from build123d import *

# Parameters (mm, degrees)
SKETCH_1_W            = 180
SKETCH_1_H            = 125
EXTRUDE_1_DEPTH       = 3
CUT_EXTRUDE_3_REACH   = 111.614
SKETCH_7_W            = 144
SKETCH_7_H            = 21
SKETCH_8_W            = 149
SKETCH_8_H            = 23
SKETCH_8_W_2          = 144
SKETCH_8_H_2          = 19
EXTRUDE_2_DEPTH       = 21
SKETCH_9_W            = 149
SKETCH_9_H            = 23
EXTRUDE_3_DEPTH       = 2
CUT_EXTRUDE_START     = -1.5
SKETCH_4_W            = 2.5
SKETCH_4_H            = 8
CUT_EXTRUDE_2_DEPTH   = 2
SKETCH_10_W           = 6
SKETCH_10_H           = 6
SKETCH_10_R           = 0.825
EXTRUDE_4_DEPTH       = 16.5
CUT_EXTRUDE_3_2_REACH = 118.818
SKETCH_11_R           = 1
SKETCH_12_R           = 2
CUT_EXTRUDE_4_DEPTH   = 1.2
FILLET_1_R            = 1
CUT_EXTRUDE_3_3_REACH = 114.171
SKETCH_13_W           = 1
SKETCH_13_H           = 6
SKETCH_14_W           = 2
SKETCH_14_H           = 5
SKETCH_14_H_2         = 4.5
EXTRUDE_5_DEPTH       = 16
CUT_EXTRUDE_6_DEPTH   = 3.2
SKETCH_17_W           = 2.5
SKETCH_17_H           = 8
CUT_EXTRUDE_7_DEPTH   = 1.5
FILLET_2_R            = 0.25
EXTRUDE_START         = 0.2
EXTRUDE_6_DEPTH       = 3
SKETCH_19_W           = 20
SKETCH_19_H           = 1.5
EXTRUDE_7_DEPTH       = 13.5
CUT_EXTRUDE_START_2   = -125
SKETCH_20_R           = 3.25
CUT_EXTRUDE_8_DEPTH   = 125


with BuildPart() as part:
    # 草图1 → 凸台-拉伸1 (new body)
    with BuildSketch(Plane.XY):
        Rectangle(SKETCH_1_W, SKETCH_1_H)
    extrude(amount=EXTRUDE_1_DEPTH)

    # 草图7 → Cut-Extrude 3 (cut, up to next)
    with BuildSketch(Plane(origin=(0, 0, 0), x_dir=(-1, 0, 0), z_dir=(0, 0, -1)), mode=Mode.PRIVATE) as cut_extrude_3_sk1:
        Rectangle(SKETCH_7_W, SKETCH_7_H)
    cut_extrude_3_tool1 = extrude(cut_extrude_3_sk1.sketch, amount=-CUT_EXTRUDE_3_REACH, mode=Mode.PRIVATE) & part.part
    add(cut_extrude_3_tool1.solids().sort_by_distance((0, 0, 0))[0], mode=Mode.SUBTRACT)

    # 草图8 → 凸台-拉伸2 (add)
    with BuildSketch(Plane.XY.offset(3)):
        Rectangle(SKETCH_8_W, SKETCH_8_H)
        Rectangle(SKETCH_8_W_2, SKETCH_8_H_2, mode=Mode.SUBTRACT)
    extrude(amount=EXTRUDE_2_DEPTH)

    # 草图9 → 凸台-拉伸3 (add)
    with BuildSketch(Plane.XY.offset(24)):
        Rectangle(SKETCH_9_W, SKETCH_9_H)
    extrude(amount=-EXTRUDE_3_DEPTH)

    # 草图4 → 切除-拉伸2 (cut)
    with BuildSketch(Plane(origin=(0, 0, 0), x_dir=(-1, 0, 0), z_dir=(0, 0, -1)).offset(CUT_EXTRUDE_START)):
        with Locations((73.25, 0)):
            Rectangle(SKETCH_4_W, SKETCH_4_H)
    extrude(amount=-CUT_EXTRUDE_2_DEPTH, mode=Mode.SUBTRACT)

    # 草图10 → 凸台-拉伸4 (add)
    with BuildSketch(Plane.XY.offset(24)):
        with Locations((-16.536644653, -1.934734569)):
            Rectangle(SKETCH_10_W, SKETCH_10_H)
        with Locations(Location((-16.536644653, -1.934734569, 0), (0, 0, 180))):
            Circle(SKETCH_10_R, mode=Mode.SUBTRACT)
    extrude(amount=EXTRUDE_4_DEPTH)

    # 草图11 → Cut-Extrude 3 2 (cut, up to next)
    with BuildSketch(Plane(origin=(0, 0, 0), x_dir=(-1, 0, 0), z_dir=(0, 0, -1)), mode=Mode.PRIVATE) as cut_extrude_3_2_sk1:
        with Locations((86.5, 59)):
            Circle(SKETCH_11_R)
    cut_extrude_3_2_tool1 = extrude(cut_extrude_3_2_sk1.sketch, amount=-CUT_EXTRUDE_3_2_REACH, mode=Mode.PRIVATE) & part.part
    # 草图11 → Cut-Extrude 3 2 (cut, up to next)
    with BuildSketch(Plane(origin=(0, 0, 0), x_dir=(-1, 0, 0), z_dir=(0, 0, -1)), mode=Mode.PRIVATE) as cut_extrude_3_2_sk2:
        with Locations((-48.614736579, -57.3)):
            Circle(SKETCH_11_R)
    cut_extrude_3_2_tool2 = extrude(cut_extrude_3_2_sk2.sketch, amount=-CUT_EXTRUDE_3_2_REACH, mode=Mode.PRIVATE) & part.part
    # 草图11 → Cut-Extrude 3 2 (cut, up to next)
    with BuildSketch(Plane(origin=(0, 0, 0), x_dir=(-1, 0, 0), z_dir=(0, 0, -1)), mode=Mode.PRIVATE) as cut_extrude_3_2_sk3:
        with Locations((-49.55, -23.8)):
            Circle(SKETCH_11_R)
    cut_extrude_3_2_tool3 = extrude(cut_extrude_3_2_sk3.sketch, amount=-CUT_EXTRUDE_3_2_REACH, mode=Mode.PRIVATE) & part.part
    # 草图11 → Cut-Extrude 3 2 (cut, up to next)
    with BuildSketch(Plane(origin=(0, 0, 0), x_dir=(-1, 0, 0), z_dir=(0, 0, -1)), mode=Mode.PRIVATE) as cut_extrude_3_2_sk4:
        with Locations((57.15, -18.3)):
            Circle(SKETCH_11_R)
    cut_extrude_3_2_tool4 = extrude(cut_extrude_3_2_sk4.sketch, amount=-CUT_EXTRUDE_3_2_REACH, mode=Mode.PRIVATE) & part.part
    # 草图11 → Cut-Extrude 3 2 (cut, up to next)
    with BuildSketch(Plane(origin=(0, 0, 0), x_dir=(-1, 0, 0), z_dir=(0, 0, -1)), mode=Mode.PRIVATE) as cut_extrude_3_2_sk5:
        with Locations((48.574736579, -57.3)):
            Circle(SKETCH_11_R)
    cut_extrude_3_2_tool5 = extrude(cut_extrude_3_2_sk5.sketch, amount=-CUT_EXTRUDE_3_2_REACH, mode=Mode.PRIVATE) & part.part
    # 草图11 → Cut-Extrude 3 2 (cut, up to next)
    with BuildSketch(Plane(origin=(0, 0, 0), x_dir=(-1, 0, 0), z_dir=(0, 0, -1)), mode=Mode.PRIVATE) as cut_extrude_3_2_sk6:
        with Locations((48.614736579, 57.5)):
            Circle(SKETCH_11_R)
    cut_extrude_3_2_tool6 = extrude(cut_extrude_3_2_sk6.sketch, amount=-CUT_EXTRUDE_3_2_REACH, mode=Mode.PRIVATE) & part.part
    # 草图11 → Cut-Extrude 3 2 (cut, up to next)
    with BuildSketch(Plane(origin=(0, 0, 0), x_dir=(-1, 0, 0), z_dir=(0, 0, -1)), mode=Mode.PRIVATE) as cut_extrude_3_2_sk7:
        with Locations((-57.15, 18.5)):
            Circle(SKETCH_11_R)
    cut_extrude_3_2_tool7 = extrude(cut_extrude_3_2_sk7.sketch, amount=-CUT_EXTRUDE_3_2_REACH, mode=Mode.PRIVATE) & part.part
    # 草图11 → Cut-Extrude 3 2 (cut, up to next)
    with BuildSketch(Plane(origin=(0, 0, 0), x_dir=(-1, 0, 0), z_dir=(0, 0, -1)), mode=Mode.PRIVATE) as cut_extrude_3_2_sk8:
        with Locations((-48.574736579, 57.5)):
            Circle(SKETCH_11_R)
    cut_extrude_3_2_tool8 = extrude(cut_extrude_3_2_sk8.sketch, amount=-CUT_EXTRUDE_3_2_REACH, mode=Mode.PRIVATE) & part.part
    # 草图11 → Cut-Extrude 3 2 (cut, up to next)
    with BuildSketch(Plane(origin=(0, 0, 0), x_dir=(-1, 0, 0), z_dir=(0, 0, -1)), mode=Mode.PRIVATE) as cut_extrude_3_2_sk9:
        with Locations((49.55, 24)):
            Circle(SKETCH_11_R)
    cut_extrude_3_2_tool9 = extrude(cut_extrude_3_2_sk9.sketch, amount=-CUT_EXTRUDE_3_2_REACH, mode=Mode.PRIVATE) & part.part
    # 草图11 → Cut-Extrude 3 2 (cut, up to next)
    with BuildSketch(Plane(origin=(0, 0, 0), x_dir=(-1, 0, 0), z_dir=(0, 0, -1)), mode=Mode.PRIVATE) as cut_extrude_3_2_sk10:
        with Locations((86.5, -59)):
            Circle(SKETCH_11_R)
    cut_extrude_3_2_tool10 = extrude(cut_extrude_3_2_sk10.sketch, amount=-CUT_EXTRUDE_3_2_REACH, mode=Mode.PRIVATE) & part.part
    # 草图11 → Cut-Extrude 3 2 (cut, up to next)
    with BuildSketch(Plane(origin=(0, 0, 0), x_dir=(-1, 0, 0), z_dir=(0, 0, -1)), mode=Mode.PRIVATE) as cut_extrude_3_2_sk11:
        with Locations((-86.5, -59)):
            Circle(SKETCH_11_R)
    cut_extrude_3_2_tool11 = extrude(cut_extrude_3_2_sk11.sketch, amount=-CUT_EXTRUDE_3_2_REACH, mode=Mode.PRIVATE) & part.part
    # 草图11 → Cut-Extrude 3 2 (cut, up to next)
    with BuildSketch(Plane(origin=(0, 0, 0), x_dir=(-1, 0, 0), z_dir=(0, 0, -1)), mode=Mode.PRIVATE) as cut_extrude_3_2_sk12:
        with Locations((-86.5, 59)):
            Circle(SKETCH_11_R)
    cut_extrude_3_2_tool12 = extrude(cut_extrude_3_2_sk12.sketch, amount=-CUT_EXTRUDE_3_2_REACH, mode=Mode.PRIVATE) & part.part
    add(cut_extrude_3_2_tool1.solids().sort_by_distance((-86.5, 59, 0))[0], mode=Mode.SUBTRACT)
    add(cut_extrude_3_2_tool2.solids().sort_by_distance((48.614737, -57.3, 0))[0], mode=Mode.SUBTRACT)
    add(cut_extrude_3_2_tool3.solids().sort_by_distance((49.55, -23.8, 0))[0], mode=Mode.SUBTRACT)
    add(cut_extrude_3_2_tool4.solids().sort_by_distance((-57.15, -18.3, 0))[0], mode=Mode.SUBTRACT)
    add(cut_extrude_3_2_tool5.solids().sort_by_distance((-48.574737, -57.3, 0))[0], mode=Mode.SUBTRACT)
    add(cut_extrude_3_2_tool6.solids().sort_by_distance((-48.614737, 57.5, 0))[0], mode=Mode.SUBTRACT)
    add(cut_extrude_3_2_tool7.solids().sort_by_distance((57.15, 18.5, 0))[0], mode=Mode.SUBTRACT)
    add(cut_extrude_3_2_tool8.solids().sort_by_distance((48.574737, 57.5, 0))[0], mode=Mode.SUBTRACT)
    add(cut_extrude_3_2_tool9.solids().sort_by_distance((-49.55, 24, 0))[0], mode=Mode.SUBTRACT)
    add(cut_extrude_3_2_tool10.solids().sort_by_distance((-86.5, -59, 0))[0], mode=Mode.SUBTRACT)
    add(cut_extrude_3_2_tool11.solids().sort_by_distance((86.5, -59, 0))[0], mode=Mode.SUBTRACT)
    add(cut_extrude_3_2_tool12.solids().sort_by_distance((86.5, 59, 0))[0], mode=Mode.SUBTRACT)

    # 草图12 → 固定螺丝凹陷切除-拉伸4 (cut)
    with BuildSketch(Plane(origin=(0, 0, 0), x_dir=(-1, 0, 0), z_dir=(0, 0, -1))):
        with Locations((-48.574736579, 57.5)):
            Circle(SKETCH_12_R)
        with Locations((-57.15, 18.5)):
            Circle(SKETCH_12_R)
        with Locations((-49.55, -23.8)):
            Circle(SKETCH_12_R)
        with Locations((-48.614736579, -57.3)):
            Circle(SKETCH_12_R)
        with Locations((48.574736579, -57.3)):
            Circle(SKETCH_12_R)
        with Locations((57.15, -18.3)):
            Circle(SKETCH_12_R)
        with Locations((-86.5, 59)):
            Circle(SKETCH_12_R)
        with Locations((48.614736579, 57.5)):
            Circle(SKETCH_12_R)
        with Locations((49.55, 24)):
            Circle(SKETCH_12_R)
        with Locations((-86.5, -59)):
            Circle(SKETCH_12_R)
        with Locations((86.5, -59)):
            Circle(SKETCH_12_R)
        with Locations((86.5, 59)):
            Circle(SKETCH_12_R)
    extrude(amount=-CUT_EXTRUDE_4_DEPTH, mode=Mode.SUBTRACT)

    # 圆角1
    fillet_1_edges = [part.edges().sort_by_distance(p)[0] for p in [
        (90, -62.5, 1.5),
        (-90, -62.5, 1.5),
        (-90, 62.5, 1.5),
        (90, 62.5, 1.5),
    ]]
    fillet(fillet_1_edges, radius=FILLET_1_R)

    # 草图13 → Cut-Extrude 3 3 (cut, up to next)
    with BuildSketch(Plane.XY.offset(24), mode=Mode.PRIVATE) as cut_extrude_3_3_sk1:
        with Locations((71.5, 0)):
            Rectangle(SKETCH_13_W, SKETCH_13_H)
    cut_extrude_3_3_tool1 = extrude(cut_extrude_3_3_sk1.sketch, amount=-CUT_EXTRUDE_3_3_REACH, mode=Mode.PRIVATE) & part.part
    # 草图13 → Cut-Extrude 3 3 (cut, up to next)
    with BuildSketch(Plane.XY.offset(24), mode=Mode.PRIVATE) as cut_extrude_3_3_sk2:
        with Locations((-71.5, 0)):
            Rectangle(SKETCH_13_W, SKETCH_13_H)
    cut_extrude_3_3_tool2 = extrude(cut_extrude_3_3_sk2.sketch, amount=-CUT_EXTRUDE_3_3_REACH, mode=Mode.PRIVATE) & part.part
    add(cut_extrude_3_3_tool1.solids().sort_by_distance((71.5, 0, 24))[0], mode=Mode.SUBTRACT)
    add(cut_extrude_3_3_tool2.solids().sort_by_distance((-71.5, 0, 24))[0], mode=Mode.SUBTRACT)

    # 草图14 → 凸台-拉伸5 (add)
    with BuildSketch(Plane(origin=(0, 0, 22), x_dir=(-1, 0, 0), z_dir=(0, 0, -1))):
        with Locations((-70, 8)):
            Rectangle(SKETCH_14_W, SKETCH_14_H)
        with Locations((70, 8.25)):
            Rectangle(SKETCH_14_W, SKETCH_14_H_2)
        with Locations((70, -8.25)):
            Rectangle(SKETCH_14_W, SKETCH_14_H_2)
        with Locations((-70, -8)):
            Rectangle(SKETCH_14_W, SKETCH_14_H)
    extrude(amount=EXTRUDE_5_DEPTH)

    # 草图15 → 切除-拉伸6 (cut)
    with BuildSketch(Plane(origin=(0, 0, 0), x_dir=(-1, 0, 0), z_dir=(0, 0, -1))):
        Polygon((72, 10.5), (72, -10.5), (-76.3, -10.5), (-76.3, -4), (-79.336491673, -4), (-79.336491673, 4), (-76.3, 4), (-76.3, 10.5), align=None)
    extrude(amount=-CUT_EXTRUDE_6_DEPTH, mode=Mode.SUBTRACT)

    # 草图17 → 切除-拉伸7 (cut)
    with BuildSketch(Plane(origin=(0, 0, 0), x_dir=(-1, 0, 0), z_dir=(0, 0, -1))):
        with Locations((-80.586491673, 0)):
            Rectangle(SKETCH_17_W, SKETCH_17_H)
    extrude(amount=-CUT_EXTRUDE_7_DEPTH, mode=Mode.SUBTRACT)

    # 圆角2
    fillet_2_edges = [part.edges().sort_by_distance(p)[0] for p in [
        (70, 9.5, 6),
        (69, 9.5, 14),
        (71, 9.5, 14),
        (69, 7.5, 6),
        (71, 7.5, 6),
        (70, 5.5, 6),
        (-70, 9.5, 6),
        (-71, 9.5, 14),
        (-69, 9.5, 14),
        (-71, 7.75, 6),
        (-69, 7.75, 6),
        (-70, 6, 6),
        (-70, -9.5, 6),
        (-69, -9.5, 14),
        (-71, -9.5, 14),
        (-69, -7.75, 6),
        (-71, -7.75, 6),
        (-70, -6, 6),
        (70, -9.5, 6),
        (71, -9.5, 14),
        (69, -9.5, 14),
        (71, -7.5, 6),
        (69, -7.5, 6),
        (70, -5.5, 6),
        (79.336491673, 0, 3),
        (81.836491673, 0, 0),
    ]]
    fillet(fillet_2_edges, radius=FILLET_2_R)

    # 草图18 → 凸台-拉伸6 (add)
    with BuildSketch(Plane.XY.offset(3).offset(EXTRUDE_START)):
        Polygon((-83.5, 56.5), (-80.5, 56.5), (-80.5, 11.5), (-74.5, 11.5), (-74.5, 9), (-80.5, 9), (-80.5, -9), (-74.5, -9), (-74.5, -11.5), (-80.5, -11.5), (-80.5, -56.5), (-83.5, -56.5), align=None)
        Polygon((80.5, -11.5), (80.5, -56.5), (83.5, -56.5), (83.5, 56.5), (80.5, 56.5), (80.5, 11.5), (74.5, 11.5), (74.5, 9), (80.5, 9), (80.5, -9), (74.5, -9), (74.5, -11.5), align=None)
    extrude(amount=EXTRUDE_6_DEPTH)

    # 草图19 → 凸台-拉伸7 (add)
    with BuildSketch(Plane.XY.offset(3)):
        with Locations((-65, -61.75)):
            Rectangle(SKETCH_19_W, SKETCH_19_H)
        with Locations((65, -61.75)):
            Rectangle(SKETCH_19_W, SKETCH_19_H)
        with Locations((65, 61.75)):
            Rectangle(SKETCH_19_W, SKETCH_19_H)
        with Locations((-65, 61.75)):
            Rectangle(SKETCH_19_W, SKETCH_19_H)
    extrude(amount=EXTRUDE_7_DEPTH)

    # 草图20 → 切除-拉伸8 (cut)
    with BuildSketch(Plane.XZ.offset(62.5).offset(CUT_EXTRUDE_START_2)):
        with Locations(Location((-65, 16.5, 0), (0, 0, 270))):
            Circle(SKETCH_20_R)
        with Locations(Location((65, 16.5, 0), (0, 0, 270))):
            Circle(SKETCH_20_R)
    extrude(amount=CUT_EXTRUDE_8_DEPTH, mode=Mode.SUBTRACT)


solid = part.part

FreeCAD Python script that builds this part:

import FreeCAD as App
import Part
import Sketcher
Q = App.Units.Quantity


def edges_at(feature, points):
    """Names of the edges that pass closest to the given points."""
    edges = feature.Shape.Edges
    near = lambda p: min(range(len(edges)), key=lambda i: edges[i].distToShape(Part.Vertex(*p))[0])
    return sorted({f"Edge{near(p) + 1}" for p in points})


def add_polygon(sketch, points):
    """Adds a closed chain of lines whose ends are joined by coincident constraints."""
    first, n = sketch.GeometryCount, len(points)
    for a, b in zip(points, points[1:] + points[:1]):
        sketch.addGeometry(Part.LineSegment(App.Vector(*a, 0), App.Vector(*b, 0)), False)
    for i in range(n):
        sketch.addConstraint(Sketcher.Constraint("Coincident", first + i, 2, first + (i + 1) % n, 1))

doc = App.newDocument("Part")
body = doc.addObject("PartDesign::Body", "Body")

# Sketch on XY plane
sketch1 = doc.addObject("Sketcher::SketchObject", "Sketch")
body.addObject(sketch1)
sketch1.AttachmentSupport = (doc.XY_Plane, [""])
sketch1.MapMode = "FlatFace"
add_polygon(sketch1, [(-90, 62), (-90, -62), (90, -62), (90, 62)])  # lines 0-3
sketch1.addConstraint([
    Sketcher.Constraint("Vertical", 0),
    Sketcher.Constraint("Horizontal", 1),
    Sketcher.Constraint("Vertical", 2),
    Sketcher.Constraint("Horizontal", 3),
    Sketcher.Constraint("Symmetric", 0, 2, 2, 2, -1, 1),
    Sketcher.Constraint("DistanceX", 1, 1, 1, 2, Q("180 mm")),
    Sketcher.Constraint("DistanceY", 0, 2, 0, 1, Q("125 mm")),
])
pad1 = doc.addObject("PartDesign::Pad", "Pad")
body.addObject(pad1)
pad1.Profile = sketch1
pad1.Length = 3

# Sketch on XY plane
sketch2 = doc.addObject("Sketcher::SketchObject", "Sketch001")
body.addObject(sketch2)
sketch2.AttachmentSupport = (doc.XY_Plane, [""])
sketch2.MapMode = "FlatFace"
add_polygon(sketch2, [(72, 10), (72, -10), (-72, -10), (-72, 10)])  # lines 0-3
sketch2.addConstraint([
    Sketcher.Constraint("Vertical", 0),
    Sketcher.Constraint("Horizontal", 1),
    Sketcher.Constraint("Vertical", 2),
    Sketcher.Constraint("Horizontal", 3),
    Sketcher.Constraint("Symmetric", 0, 2, 2, 2, -1, 1),
    Sketcher.Constraint("DistanceX", 1, 2, 1, 1, Q("144 mm")),
    Sketcher.Constraint("DistanceY", 0, 2, 0, 1, Q("21 mm")),
])
pocket1 = doc.addObject("PartDesign::Pocket", "Pocket")
body.addObject(pocket1)
pocket1.Profile = sketch2
pocket1.Type = "UpToFirst"
pocket1.Reversed = True

# Sketch on XY plane
sketch3 = doc.addObject("Sketcher::SketchObject", "Sketch002")
body.addObject(sketch3)
sketch3.AttachmentSupport = (doc.XY_Plane, [""])
sketch3.MapMode = "FlatFace"
sketch3.AttachmentOffset = App.Placement(App.Vector(0, 0, 3), App.Rotation())
add_polygon(sketch3, [(-74, 12), (-74, -12), (74, -12), (74, 12)])  # lines 0-3
add_polygon(sketch3, [(72, -10), (-72, -10), (-72, 10), (72, 10)])  # lines 4-7
sketch3.addConstraint([
    Sketcher.Constraint("Vertical", 0),
    Sketcher.Constraint("Horizontal", 1),
    Sketcher.Constraint("Vertical", 2),
    Sketcher.Constraint("Horizontal", 3),
    Sketcher.Constraint("Horizontal", 4),
    Sketcher.Constraint("Vertical", 5),
    Sketcher.Constraint("Horizontal", 6),
    Sketcher.Constraint("Vertical", 7),
    Sketcher.Constraint("Symmetric", 0, 2, 2, 2, -1, 1),
    Sketcher.Constraint("Symmetric", 4, 2, 6, 2, -1, 1),
    Sketcher.Constraint("DistanceX", 1, 1, 1, 2, Q("149 mm")),
    Sketcher.Constraint("DistanceX", 4, 2, 4, 1, Q("144 mm")),
    Sketcher.Constraint("DistanceY", 0, 2, 0, 1, Q("23 mm")),
    Sketcher.Constraint("DistanceY", 5, 1, 5, 2, Q("19 mm")),
])
pad2 = doc.addObject("PartDesign::Pad", "Pad001")
body.addObject(pad2)
pad2.Profile = sketch3
pad2.Length = 21

# Sketch on XY plane
sketch4 = doc.addObject("Sketcher::SketchObject", "Sketch003")
body.addObject(sketch4)
sketch4.AttachmentSupport = (doc.XY_Plane, [""])
sketch4.MapMode = "FlatFace"
sketch4.AttachmentOffset = App.Placement(App.Vector(0, 0, 24), App.Rotation())
add_polygon(sketch4, [(-74, 12), (-74, -12), (74, -12), (74, 12)])  # lines 0-3
sketch4.addConstraint([
    Sketcher.Constraint("Vertical", 0),
    Sketcher.Constraint("Horizontal", 1),
    Sketcher.Constraint("Vertical", 2),
    Sketcher.Constraint("Horizontal", 3),
    Sketcher.Constraint("Symmetric", 0, 2, 2, 2, -1, 1),
    Sketcher.Constraint("DistanceX", 1, 1, 1, 2, Q("149 mm")),
    Sketcher.Constraint("DistanceY", 0, 2, 0, 1, Q("23 mm")),
])
pad3 = doc.addObject("PartDesign::Pad", "Pad002")
body.addObject(pad3)
pad3.Profile = sketch4
pad3.Length = 2
pad3.Reversed = True

# Sketch on XY plane
sketch5 = doc.addObject("Sketcher::SketchObject", "Sketch004")
body.addObject(sketch5)
sketch5.AttachmentSupport = (doc.XY_Plane, [""])
sketch5.MapMode = "FlatFace"
sketch5.AttachmentOffset = App.Placement(App.Vector(0, 0, 1.5), App.Rotation())
add_polygon(sketch5, [(-72, 4), (-72, -4), (-74.5, -4), (-74.5, 4)])  # lines 0-3
sketch5.addConstraint([
    Sketcher.Constraint("Vertical", 0),
    Sketcher.Constraint("Horizontal", 1),
    Sketcher.Constraint("Vertical", 2),
    Sketcher.Constraint("Horizontal", 3),
    Sketcher.Constraint("DistanceY", 0, 2, 0, 1, Q("8 mm")),
    Sketcher.Constraint("DistanceX", 1, 2, 1, 1, Q("2.5 mm")),
    Sketcher.Constraint("DistanceX", 0, 2, -1, 1, Q("72 mm")),
    Sketcher.Constraint("DistanceY", 0, 2, -1, 1, Q("4 mm")),
])
pocket2 = doc.addObject("PartDesign::Pocket", "Pocket001")
body.addObject(pocket2)
pocket2.Profile = sketch5
pocket2.Length = 2
pocket2.Reversed = True

# Sketch on XY plane
sketch6 = doc.addObject("Sketcher::SketchObject", "Sketch005")
body.addObject(sketch6)
sketch6.AttachmentSupport = (doc.XY_Plane, [""])
sketch6.MapMode = "FlatFace"
sketch6.AttachmentOffset = App.Placement(App.Vector(0, 0, 24), App.Rotation())
add_polygon(sketch6, [(-19.5, 1.1), (-19.5, -4.9), (-13.5, -4.9), (-13.5, 1.1)])  # lines 0-3
sketch6.addGeometry(Part.Circle(App.Vector(-16.5, -1.9, 0), App.Vector(0, 0, 1), 0.8), False)  # 4
sketch6.addConstraint([
    Sketcher.Constraint("Vertical", 0),
    Sketcher.Constraint("Horizontal", 1),
    Sketcher.Constraint("Vertical", 2),
    Sketcher.Constraint("Horizontal", 3),
    Sketcher.Constraint("Equal", 3, 0),
    Sketcher.Constraint("Diameter", 4, Q("1.65 mm")),
    Sketcher.Constraint("DistanceX", 1, 1, 1, 2, Q("6 mm")),
    Sketcher.Constraint("DistanceX", 0, 2, 4, 3, Q("3 mm")),
    Sketcher.Constraint("DistanceY", 0, 2, 4, 3, Q("3 mm")),
    Sketcher.Constraint("DistanceX", 4, 3, -1, 1, Q("16.536645 mm")),
    Sketcher.Constraint("DistanceY", 4, 3, -1, 1, Q("1.934735 mm")),
])
pad4 = doc.addObject("PartDesign::Pad", "Pad003")
body.addObject(pad4)
pad4.Profile = sketch6
pad4.Length = 16.5

# Sketch on XY plane
sketch7 = doc.addObject("Sketcher::SketchObject", "Sketch006")
body.addObject(sketch7)
sketch7.AttachmentSupport = (doc.XY_Plane, [""])
sketch7.MapMode = "FlatFace"
sketch7.addGeometry(Part.Circle(App.Vector(-86.5, 59, 0), App.Vector(0, 0, 1), 1), False)
sketch7.addConstraint([
    Sketcher.Constraint("Diameter", 0, Q("2 mm")),
    Sketcher.Constraint("DistanceY", -1, 1, 0, 3, Q("59 mm")),
    Sketcher.Constraint("DistanceX", 0, 3, -1, 1, Q("86.5 mm")),
])
pocket3 = doc.addObject("PartDesign::Pocket", "Pocket002")
body.addObject(pocket3)
pocket3.Profile = sketch7
pocket3.Type = "UpToFirst"
pocket3.Reversed = True

# Sketch on XY plane
sketch8 = doc.addObject("Sketcher::SketchObject", "Sketch007")
body.addObject(sketch8)
sketch8.AttachmentSupport = (doc.XY_Plane, [""])
sketch8.MapMode = "FlatFace"
sketch8.addGeometry(Part.Circle(App.Vector(48.6, -57.3, 0), App.Vector(0, 0, 1), 1), False)
sketch8.addConstraint([
    Sketcher.Constraint("Diameter", 0, Q("2 mm")),
    Sketcher.Constraint("DistanceY", 0, 3, -1, 1, Q("57.3 mm")),
    Sketcher.Constraint("DistanceX", -1, 1, 0, 3, Q("48.614737 mm")),
])
pocket4 = doc.addObject("PartDesign::Pocket", "Pocket003")
body.addObject(pocket4)
pocket4.Profile = sketch8
pocket4.Type = "UpToFirst"
pocket4.Reversed = True

# Sketch on XY plane
sketch9 = doc.addObject("Sketcher::SketchObject", "Sketch008")
body.addObject(sketch9)
sketch9.AttachmentSupport = (doc.XY_Plane, [""])
sketch9.MapMode = "FlatFace"
sketch9.addGeometry(Part.Circle(App.Vector(49.5, -23.8, 0), App.Vector(0, 0, 1), 1), False)
sketch9.addConstraint([
    Sketcher.Constraint("Diameter", 0, Q("2 mm")),
    Sketcher.Constraint("DistanceY", 0, 3, -1, 1, Q("23.8 mm")),
    Sketcher.Constraint("DistanceX", -1, 1, 0, 3, Q("49.55 mm")),
])
pocket5 = doc.addObject("PartDesign::Pocket", "Pocket004")
body.addObject(pocket5)
pocket5.Profile = sketch9
pocket5.Type = "UpToFirst"
pocket5.Reversed = True

# Sketch on XY plane
sketch10 = doc.addObject("Sketcher::SketchObject", "Sketch009")
body.addObject(sketch10)
sketch10.AttachmentSupport = (doc.XY_Plane, [""])
sketch10.MapMode = "FlatFace"
sketch10.addGeometry(Part.Circle(App.Vector(-57.1, -18.3, 0), App.Vector(0, 0, 1), 1), False)
sketch10.addConstraint([
    Sketcher.Constraint("Diameter", 0, Q("2 mm")),
    Sketcher.Constraint("DistanceY", 0, 3, -1, 1, Q("18.3 mm")),
    Sketcher.Constraint("DistanceX", 0, 3, -1, 1, Q("57.15 mm")),
])
pocket6 = doc.addObject("PartDesign::Pocket", "Pocket005")
body.addObject(pocket6)
pocket6.Profile = sketch10
pocket6.Type = "UpToFirst"
pocket6.Reversed = True

# Sketch on XY plane
sketch11 = doc.addObject("Sketcher::SketchObject", "Sketch010")
body.addObject(sketch11)
sketch11.AttachmentSupport = (doc.XY_Plane, [""])
sketch11.MapMode = "FlatFace"
sketch11.addGeometry(Part.Circle(App.Vector(-48.6, -57.3, 0), App.Vector(0, 0, 1), 1), False)
sketch11.addConstraint([
    Sketcher.Constraint("Diameter", 0, Q("2 mm")),
    Sketcher.Constraint("DistanceY", 0, 3, -1, 1, Q("57.3 mm")),
    Sketcher.Constraint("DistanceX", 0, 3, -1, 1, Q("48.574737 mm")),
])
pocket7 = doc.addObject("PartDesign::Pocket", "Pocket006")
body.addObject(pocket7)
pocket7.Profile = sketch11
pocket7.Type = "UpToFirst"
pocket7.Reversed = True

# Sketch on XY plane
sketch12 = doc.addObject("Sketcher::SketchObject", "Sketch011")
body.addObject(sketch12)
sketch12.AttachmentSupport = (doc.XY_Plane, [""])
sketch12.MapMode = "FlatFace"
sketch12.addGeometry(Part.Circle(App.Vector(-48.6, 57.5, 0), App.Vector(0, 0, 1), 1), False)
sketch12.addConstraint([
    Sketcher.Constraint("Diameter", 0, Q("2 mm")),
    Sketcher.Constraint("DistanceY", -1, 1, 0, 3, Q("57.5 mm")),
    Sketcher.Constraint("DistanceX", 0, 3, -1, 1, Q("48.614737 mm")),
])
pocket8 = doc.addObject("PartDesign::Pocket", "Pocket007")
body.addObject(pocket8)
pocket8.Profile = sketch12
pocket8.Type = "UpToFirst"
pocket8.Reversed = True

# Sketch on XY plane
sketch13 = doc.addObject("Sketcher::SketchObject", "Sketch012")
body.addObject(sketch13)
sketch13.AttachmentSupport = (doc.XY_Plane, [""])
sketch13.MapMode = "FlatFace"
sketch13.addGeometry(Part.Circle(App.Vector(57.1, 18.5, 0), App.Vector(0, 0, 1), 1), False)
sketch13.addConstraint([
    Sketcher.Constraint("Diameter", 0, Q("2 mm")),
    Sketcher.Constraint("DistanceY", -1, 1, 0, 3, Q("18.5 mm")),
    Sketcher.Constraint("DistanceX", -1, 1, 0, 3, Q("57.15 mm")),
])
pocket9 = doc.addObject("PartDesign::Pocket", "Pocket008")
body.addObject(pocket9)
pocket9.Profile = sketch13
pocket9.Type = "UpToFirst"
pocket9.Reversed = True

# Sketch on XY plane
sketch14 = doc.addObject("Sketcher::SketchObject", "Sketch013")
body.addObject(sketch14)
sketch14.AttachmentSupport = (doc.XY_Plane, [""])
sketch14.MapMode = "FlatFace"
sketch14.addGeometry(Part.Circle(App.Vector(48.6, 57.5, 0), App.Vector(0, 0, 1), 1), False)
sketch14.addConstraint([
    Sketcher.Constraint("Diameter", 0, Q("2 mm")),
    Sketcher.Constraint("DistanceY", -1, 1, 0, 3, Q("57.5 mm")),
    Sketcher.Constraint("DistanceX", -1, 1, 0, 3, Q("48.574737 mm")),
])
pocket10 = doc.addObject("PartDesign::Pocket", "Pocket009")
body.addObject(pocket10)
pocket10.Profile = sketch14
pocket10.Type = "UpToFirst"
pocket10.Reversed = True

# Sketch on XY plane
sketch15 = doc.addObject("Sketcher::SketchObject", "Sketch014")
body.addObject(sketch15)
sketch15.AttachmentSupport = (doc.XY_Plane, [""])
sketch15.MapMode = "FlatFace"
sketch15.addGeometry(Part.Circle(App.Vector(-49.5, 24, 0), App.Vector(0, 0, 1), 1), False)
sketch15.addConstraint([
    Sketcher.Constraint("Diameter", 0, Q("2 mm")),
    Sketcher.Constraint("DistanceY", -1, 1, 0, 3, Q("24 mm")),
    Sketcher.Constraint("DistanceX", 0, 3, -1, 1, Q("49.55 mm")),
])
pocket11 = doc.addObject("PartDesign::Pocket", "Pocket010")
body.addObject(pocket11)
pocket11.Profile = sketch15
pocket11.Type = "UpToFirst"
pocket11.Reversed = True

# Sketch on XY plane
sketch16 = doc.addObject("Sketcher::SketchObject", "Sketch015")
body.addObject(sketch16)
sketch16.AttachmentSupport = (doc.XY_Plane, [""])
sketch16.MapMode = "FlatFace"
sketch16.addGeometry(Part.Circle(App.Vector(-86.5, -59, 0), App.Vector(0, 0, 1), 1), False)
sketch16.addConstraint([
    Sketcher.Constraint("Diameter", 0, Q("2 mm")),
    Sketcher.Constraint("DistanceY", 0, 3, -1, 1, Q("59 mm")),
    Sketcher.Constraint("DistanceX", 0, 3, -1, 1, Q("86.5 mm")),
])
pocket12 = doc.addObject("PartDesign::Pocket", "Pocket011")
body.addObject(pocket12)
pocket12.Profile = sketch16
pocket12.Type = "UpToFirst"
pocket12.Reversed = True

# Sketch on XY plane
sketch17 = doc.addObject("Sketcher::SketchObject", "Sketch016")
body.addObject(sketch17)
sketch17.AttachmentSupport = (doc.XY_Plane, [""])
sketch17.MapMode = "FlatFace"
sketch17.addGeometry(Part.Circle(App.Vector(86.5, -59, 0), App.Vector(0, 0, 1), 1), False)
sketch17.addConstraint([
    Sketcher.Constraint("Diameter", 0, Q("2 mm")),
    Sketcher.Constraint("DistanceY", 0, 3, -1, 1, Q("59 mm")),
    Sketcher.Constraint("DistanceX", -1, 1, 0, 3, Q("86.5 mm")),
])
pocket13 = doc.addObject("PartDesign::Pocket", "Pocket012")
body.addObject(pocket13)
pocket13.Profile = sketch17
pocket13.Type = "UpToFirst"
pocket13.Reversed = True

# Sketch on XY plane
sketch18 = doc.addObject("Sketcher::SketchObject", "Sketch017")
body.addObject(sketch18)
sketch18.AttachmentSupport = (doc.XY_Plane, [""])
sketch18.MapMode = "FlatFace"
sketch18.addGeometry(Part.Circle(App.Vector(86.5, 59, 0), App.Vector(0, 0, 1), 1), False)
sketch18.addConstraint([
    Sketcher.Constraint("Diameter", 0, Q("2 mm")),
    Sketcher.Constraint("DistanceY", -1, 1, 0, 3, Q("59 mm")),
    Sketcher.Constraint("DistanceX", -1, 1, 0, 3, Q("86.5 mm")),
])
pocket14 = doc.addObject("PartDesign::Pocket", "Pocket013")
body.addObject(pocket14)
pocket14.Profile = sketch18
pocket14.Type = "UpToFirst"
pocket14.Reversed = True

# Sketch on XY plane
sketch19 = doc.addObject("Sketcher::SketchObject", "Sketch018")
body.addObject(sketch19)
sketch19.AttachmentSupport = (doc.XY_Plane, [""])
sketch19.MapMode = "FlatFace"
sketch19.addGeometry([
    Part.Circle(App.Vector(48.6, 57.5, 0), App.Vector(0, 0, 1), 2),  # 0
    Part.Circle(App.Vector(57.1, 18.5, 0), App.Vector(0, 0, 1), 2),  # 1
    Part.Circle(App.Vector(49.5, -23.8, 0), App.Vector(0, 0, 1), 2),  # 2
    Part.Circle(App.Vector(48.6, -57.3, 0), App.Vector(0, 0, 1), 2),  # 3
    Part.Circle(App.Vector(-48.6, -57.3, 0), App.Vector(0, 0, 1), 2),  # 4
    Part.Circle(App.Vector(-57.1, -18.3, 0), App.Vector(0, 0, 1), 2),  # 5
    Part.Circle(App.Vector(86.5, 59, 0), App.Vector(0, 0, 1), 2),  # 6
    Part.Circle(App.Vector(-48.6, 57.5, 0), App.Vector(0, 0, 1), 2),  # 7
    Part.Circle(App.Vector(-49.5, 24, 0), App.Vector(0, 0, 1), 2),  # 8
    Part.Circle(App.Vector(86.5, -59, 0), App.Vector(0, 0, 1), 2),  # 9
    Part.Circle(App.Vector(-86.5, -59, 0), App.Vector(0, 0, 1), 2),  # 10
    Part.Circle(App.Vector(-86.5, 59, 0), App.Vector(0, 0, 1), 2),  # 11
], False)
sketch19.addConstraint([
    Sketcher.Constraint("Equal", 0, 1),
    Sketcher.Constraint("Equal", 1, 2),
    Sketcher.Constraint("Equal", 2, 3),
    Sketcher.Constraint("Equal", 3, 4),
    Sketcher.Constraint("Equal", 4, 5),
    Sketcher.Constraint("Equal", 5, 6),
    Sketcher.Constraint("Equal", 6, 7),
    Sketcher.Constraint("Equal", 7, 8),
    Sketcher.Constraint("Equal", 8, 9),
    Sketcher.Constraint("Equal", 9, 10),
    Sketcher.Constraint("Equal", 10, 11),
    Sketcher.Constraint("Symmetric", 6, 3, 10, 3, -1, 1),
    Sketcher.Constraint("Symmetric", 9, 3, 11, 3, -1, 1),
    Sketcher.Constraint("Symmetric", 9, 3, 10, 3, -2),
    Sketcher.Constraint("Horizontal", 3, 3, 4, 3),
    Sketcher.Constraint("Horizontal", 0, 3, 7, 3),
    Sketcher.Constraint("Diameter", 0, Q("4 mm")),
    Sketcher.Constraint("DistanceY", -1, 1, 6, 3, Q("59 mm")),
    Sketcher.Constraint("DistanceY", -1, 1, 8, 3, Q("24 mm")),
    Sketcher.Constraint("DistanceY", 1, 3, 0, 3, Q("39 mm")),
    Sketcher.Constraint("DistanceY", 4, 3, 5, 3, Q("39 mm")),
    Sketcher.Constraint("DistanceY", -1, 1, 0, 3, Q("57.5 mm")),
    Sketcher.Constraint("DistanceY", 2, 3, -1, 1, Q("23.8 mm")),
    Sketcher.Constraint("DistanceY", 3, 3, -1, 1, Q("57.3 mm")),
    Sketcher.Constraint("DistanceX", -1, 1, 6, 3, Q("86.5 mm")),
    Sketcher.Constraint("DistanceX", 2, 3, 1, 3, Q("7.6 mm")),
    Sketcher.Constraint("DistanceX", 5, 3, 2, 3, Q("106.7 mm")),
    Sketcher.Constraint("DistanceX", 5, 3, 8, 3, Q("7.6 mm")),
    Sketcher.Constraint("DistanceX", -1, 1, 1, 3, Q("57.15 mm")),
    Sketcher.Constraint("DistanceX", 0, 3, 3, 3, Q("0.04 mm")),
    Sketcher.Constraint("DistanceX", 7, 3, 4, 3, Q("0.04 mm")),
    Sketcher.Constraint("DistanceX", -1, 1, 0, 3, Q("48.574737 mm")),
    Sketcher.Constraint("DistanceX", 4, 3, -1, 1, Q("48.574737 mm")),
])
pocket15 = doc.addObject("PartDesign::Pocket", "Pocket014")
body.addObject(pocket15)
pocket15.Profile = sketch19
pocket15.Length = 1.2
pocket15.Reversed = True
doc.recompute()

fillet = doc.addObject("PartDesign::Fillet", "Fillet")
body.addObject(fillet)
fillet.Base = (pocket15, edges_at(pocket15, [
    (90, -62.5, 1.5),
    (-90, -62.5, 1.5),
    (-90, 62.5, 1.5),
    (90, 62.5, 1.5),
]))
fillet.Radius = 1

# Sketch on XY plane
sketch20 = doc.addObject("Sketcher::SketchObject", "Sketch019")
body.addObject(sketch20)
sketch20.AttachmentSupport = (doc.XY_Plane, [""])
sketch20.MapMode = "FlatFace"
sketch20.AttachmentOffset = App.Placement(App.Vector(0, 0, 24), App.Rotation())
add_polygon(sketch20, [(71, 3), (71, -3), (72, -3), (72, 3)])  # lines 0-3
sketch20.addConstraint([
    Sketcher.Constraint("Vertical", 0),
    Sketcher.Constraint("Horizontal", 1),
    Sketcher.Constraint("Vertical", 2),
    Sketcher.Constraint("Horizontal", 3),
    Sketcher.Constraint("DistanceX", 1, 1, 1, 2, Q("1 mm")),
    Sketcher.Constraint("DistanceY", 0, 2, 0, 1, Q("6 mm")),
    Sketcher.Constraint("DistanceX", -1, 1, 0, 2, Q("71 mm")),
    Sketcher.Constraint("DistanceY", 0, 2, -1, 1, Q("3 mm")),
])
pocket16 = doc.addObject("PartDesign::Pocket", "Pocket015")
body.addObject(pocket16)
pocket16.Profile = sketch20
pocket16.Type = "UpToFirst"

# Sketch on XY plane
sketch21 = doc.addObject("Sketcher::SketchObject", "Sketch020")
body.addObject(sketch21)
sketch21.AttachmentSupport = (doc.XY_Plane, [""])
sketch21.MapMode = "FlatFace"
sketch21.AttachmentOffset = App.Placement(App.Vector(0, 0, 24), App.Rotation())
add_polygon(sketch21, [(-72, 3), (-72, -3), (-71, -3), (-71, 3)])  # lines 0-3
sketch21.addConstraint([
    Sketcher.Constraint("Vertical", 0),
    Sketcher.Constraint("Horizontal", 1),
    Sketcher.Constraint("Vertical", 2),
    Sketcher.Constraint("Horizontal", 3),
    Sketcher.Constraint("DistanceX", 1, 1, 1, 2, Q("1 mm")),
    Sketcher.Constraint("DistanceY", 0, 2, 0, 1, Q("6 mm")),
    Sketcher.Constraint("DistanceX", 0, 2, -1, 1, Q("72 mm")),
    Sketcher.Constraint("DistanceY", 0, 2, -1, 1, Q("3 mm")),
])
pocket17 = doc.addObject("PartDesign::Pocket", "Pocket016")
body.addObject(pocket17)
pocket17.Profile = sketch21
pocket17.Type = "UpToFirst"

# Sketch on XY plane
sketch22 = doc.addObject("Sketcher::SketchObject", "Sketch021")
body.addObject(sketch22)
sketch22.AttachmentSupport = (doc.XY_Plane, [""])
sketch22.MapMode = "FlatFace"
sketch22.AttachmentOffset = App.Placement(App.Vector(0, 0, 22), App.Rotation())
add_polygon(sketch22, [(71, 10.5), (71, 5.5), (69, 5.5), (69, 10.5)])  # lines 0-3
add_polygon(sketch22, [(-69, 10.5), (-69, 6), (-71, 6), (-71, 10.5)])  # lines 4-7
add_polygon(sketch22, [(-69, -6), (-69, -10.5), (-71, -10.5), (-71, -6)])  # lines 8-11
add_polygon(sketch22, [(71, -5.5), (71, -10.5), (69, -10.5), (69, -5.5)])  # lines 12-15
sketch22.addConstraint([
    Sketcher.Constraint("Vertical", 0),
    Sketcher.Constraint("Horizontal", 1),
    Sketcher.Constraint("Vertical", 2),
    Sketcher.Constraint("Horizontal", 3),
    Sketcher.Constraint("Vertical", 4),
    Sketcher.Constraint("Horizontal", 5),
    Sketcher.Constraint("Vertical", 6),
    Sketcher.Constraint("Horizontal", 7),
    Sketcher.Constraint("Vertical", 8),
    Sketcher.Constraint("Horizontal", 9),
    Sketcher.Constraint("Vertical", 10),
    Sketcher.Constraint("Horizontal", 11),
    Sketcher.Constraint("Vertical", 12),
    Sketcher.Constraint("Horizontal", 13),
    Sketcher.Constraint("Vertical", 14),
    Sketcher.Constraint("Horizontal", 15),
    Sketcher.Constraint("Symmetric", 2, 2, 8, 2, -1, 1),
    Sketcher.Constraint("Symmetric", 6, 2, 12, 2, -1, 1),
    Sketcher.Constraint("Symmetric", 3, 2, 6, 2, -2),
    Sketcher.Constraint("Symmetric", 5, 2, 10, 2, -1),
    Sketcher.Constraint("Symmetric", 1, 2, 14, 2, -1),
    Sketcher.Constraint("Vertical", 7, 2, 8, 2),
    Sketcher.Constraint("DistanceX", 1, 2, 1, 1, Q("2 mm")),
    Sketcher.Constraint("DistanceY", 0, 2, 0, 1, Q("5 mm")),
    Sketcher.Constraint("DistanceY", 4, 2, 4, 1, Q("4.5 mm")),
    Sketcher.Constraint("DistanceX", -1, 1, 0, 2, Q("71 mm")),
    Sketcher.Constraint("DistanceY", -1, 1, 4, 2, Q("6 mm")),
])
pad5 = doc.addObject("PartDesign::Pad", "Pad004")
body.addObject(pad5)
pad5.Profile = sketch22
pad5.Length = 16
pad5.Reversed = True

# Sketch on XY plane
sketch23 = doc.addObject("Sketcher::SketchObject", "Sketch022")
body.addObject(sketch23)
sketch23.AttachmentSupport = (doc.XY_Plane, [""])
sketch23.MapMode = "FlatFace"
add_polygon(sketch23, [(-72, -10.5), (-72, 10.5), (76.3, 10.5), (76.3, 4), (79.3, 4), (79.3, -4), (76.3, -4), (76.3, -10.5)])  # lines 0-7
sketch23.addConstraint([
    Sketcher.Constraint("Vertical", 0),
    Sketcher.Constraint("Horizontal", 1),
    Sketcher.Constraint("Vertical", 2),
    Sketcher.Constraint("Horizontal", 3),
    Sketcher.Constraint("Vertical", 4),
    Sketcher.Constraint("Horizontal", 5),
    Sketcher.Constraint("Vertical", 6),
    Sketcher.Constraint("Horizontal", 7),
    Sketcher.Constraint("Symmetric", 2, 2, 5, 2, -1),
    Sketcher.Constraint("Equal", 2, 6),
    Sketcher.Constraint("DistanceY", 0, 1, 0, 2, Q("21 mm")),
    Sketcher.Constraint("DistanceY", 4, 2, 4, 1, Q("8 mm")),
    Sketcher.Constraint("DistanceX", 1, 1, 1, 2, Q("148.3 mm")),
    Sketcher.Constraint("DistanceX", 0, 2, -1, 1, Q("72 mm")),
    Sketcher.Constraint("DistanceX", 3, 1, 3, 2, Q("3.036492 mm")),
])
pocket18 = doc.addObject("PartDesign::Pocket", "Pocket017")
body.addObject(pocket18)
pocket18.Profile = sketch23
pocket18.Length = 3.2
pocket18.Reversed = True

# Sketch on XY plane
sketch24 = doc.addObject("Sketcher::SketchObject", "Sketch023")
body.addObject(sketch24)
sketch24.AttachmentSupport = (doc.XY_Plane, [""])
sketch24.MapMode = "FlatFace"
add_polygon(sketch24, [(81.8, 4), (81.8, -4), (79.3, -4), (79.3, 4)])  # lines 0-3
sketch24.addConstraint([
    Sketcher.Constraint("Vertical", 0),
    Sketcher.Constraint("Horizontal", 1),
    Sketcher.Constraint("Vertical", 2),
    Sketcher.Constraint("Horizontal", 3),
    Sketcher.Constraint("DistanceY", 0, 2, 0, 1, Q("8 mm")),
    Sketcher.Constraint("DistanceX", 1, 2, 1, 1, Q("2.5 mm")),
    Sketcher.Constraint("DistanceY", 0, 2, -1, 1, Q("4 mm")),
    Sketcher.Constraint("DistanceX", -1, 1, 0, 2, Q("81.836492 mm")),
])
pocket19 = doc.addObject("PartDesign::Pocket", "Pocket018")
body.addObject(pocket19)
pocket19.Profile = sketch24
pocket19.Length = 1.5
pocket19.Reversed = True
doc.recompute()

fillet2 = doc.addObject("PartDesign::Fillet", "Fillet001")
body.addObject(fillet2)
fillet2.Base = (pocket19, edges_at(pocket19, [
    (70, 9.5, 6),
    (69, 9.5, 14),
    (71, 9.5, 14),
    (69, 7.5, 6),
    (71, 7.5, 6),
    (70, 5.5, 6),
    (-70, 9.5, 6),
    (-71, 9.5, 14),
    (-69, 9.5, 14),
    (-71, 7.75, 6),
    (-69, 7.75, 6),
    (-70, 6, 6),
    (-70, -9.5, 6),
    (-69, -9.5, 14),
    (-71, -9.5, 14),
    (-69, -7.75, 6),
    (-71, -7.75, 6),
    (-70, -6, 6),
    (70, -9.5, 6),
    (71, -9.5, 14),
    (69, -9.5, 14),
    (71, -7.5, 6),
    (69, -7.5, 6),
    (70, -5.5, 6),
    (79.336, 0, 3),
    (81.836, 0, 0),
]))
fillet2.Radius = 0.25

# Sketch on XY plane
sketch25 = doc.addObject("Sketcher::SketchObject", "Sketch024")
body.addObject(sketch25)
sketch25.AttachmentSupport = (doc.XY_Plane, [""])
sketch25.MapMode = "FlatFace"
sketch25.AttachmentOffset = App.Placement(App.Vector(0, 0, 3.2), App.Rotation())
add_polygon(sketch25, [(-80.5, 56.5), (-83.5, 56.5), (-83.5, -56.5), (-80.5, -56.5), (-80.5, -11.5), (-74.5, -11.5), (-74.5, -9), (-80.5, -9), (-80.5, 9), (-74.5, 9), (-74.5, 11.5), (-80.5, 11.5)])  # lines 0-11
add_polygon(sketch25, [(80.5, -11.5), (80.5, -56.5), (83.5, -56.5), (83.5, 56.5), (80.5, 56.5), (80.5, 11.5), (74.5, 11.5), (74.5, 9), (80.5, 9), (80.5, -9), (74.5, -9), (74.5, -11.5)])  # lines 12-23
sketch25.addConstraint([
    Sketcher.Constraint("Horizontal", 0),
    Sketcher.Constraint("Vertical", 1),
    Sketcher.Constraint("Horizontal", 2),
    Sketcher.Constraint("Vertical", 3),
    Sketcher.Constraint("Horizontal", 4),
    Sketcher.Constraint("Vertical", 5),
    Sketcher.Constraint("Horizontal", 6),
    Sketcher.Constraint("Vertical", 7),
    Sketcher.Constraint("Horizontal", 8),
    Sketcher.Constraint("Vertical", 9),
    Sketcher.Constraint("Horizontal", 10),
    Sketcher.Constraint("Vertical", 11),
    Sketcher.Constraint("Vertical", 12),
    Sketcher.Constraint("Horizontal", 13),
    Sketcher.Constraint("Vertical", 14),
    Sketcher.Constraint("Horizontal", 15),
    Sketcher.Constraint("Vertical", 16),
    Sketcher.Constraint("Horizontal", 17),
    Sketcher.Constraint("Vertical", 18),
    Sketcher.Constraint("Horizontal", 19),
    Sketcher.Constraint("Vertical", 20),
    Sketcher.Constraint("Horizontal", 21),
    Sketcher.Constraint("Vertical", 22),
    Sketcher.Constraint("Horizontal", 23),
    Sketcher.Constraint("Symmetric", 11, 2, 12, 2, -1, 1),
    Sketcher.Constraint("Symmetric", 1, 2, 14, 2, -1, 1),
    Sketcher.Constraint("Symmetric", 3, 2, 16, 2, -1, 1),
    Sketcher.Constraint("Symmetric", 5, 2, 18, 2, -1, 1),
    Sketcher.Constraint("Symmetric", 7, 2, 20, 2, -1, 1),
    Sketcher.Constraint("Symmetric", 9, 2, 22, 2, -1, 1),
    Sketcher.Constraint("Symmetric", 2, 2, 12, 2, -2),
    Sketcher.Constraint("Symmetric", 9, 2, 17, 2, -2),
    Sketcher.Constraint("Horizontal", 8, 2, 18, 2),
    Sketcher.Constraint("Vertical", 3, 2, 6, 2),
    Sketcher.Constraint("DistanceX", 0, 2, 0, 1, Q("3 mm")),
    Sketcher.Constraint("DistanceX", 4, 1, 4, 2, Q("6 mm")),
    Sketcher.Constraint("DistanceY", 1, 2, 1, 1, Q("113 mm")),
    Sketcher.Constraint("DistanceY", 3, 1, 3, 2, Q("45 mm")),
    Sketcher.Constraint("DistanceY", 7, 1, 7, 2, Q("18 mm")),
    Sketcher.Constraint("DistanceX", 2, 2, 12, 2, Q("161 mm")),
])
pad6 = doc.addObject("PartDesign::Pad", "Pad005")
body.addObject(pad6)
pad6.Profile = sketch25
pad6.Length = 3

# Sketch on XY plane
sketch26 = doc.addObject("Sketcher::SketchObject", "Sketch025")
body.addObject(sketch26)
sketch26.AttachmentSupport = (doc.XY_Plane, [""])
sketch26.MapMode = "FlatFace"
sketch26.AttachmentOffset = App.Placement(App.Vector(0, 0, 3), App.Rotation())
add_polygon(sketch26, [(-75, -61), (-75, -62.5), (-55, -62.5), (-55, -61)])  # lines 0-3
add_polygon(sketch26, [(55, -61), (55, -62.5), (75, -62.5), (75, -61)])  # lines 4-7
add_polygon(sketch26, [(55, 62.5), (55, 61), (75, 61), (75, 62.5)])  # lines 8-11
add_polygon(sketch26, [(-75, 62.5), (-75, 61), (-55, 61), (-55, 62.5)])  # lines 12-15
sketch26.addConstraint([
    Sketcher.Constraint("Vertical", 0),
    Sketcher.Constraint("Horizontal", 1),
    Sketcher.Constraint("Vertical", 2),
    Sketcher.Constraint("Horizontal", 3),
    Sketcher.Constraint("Vertical", 4),
    Sketcher.Constraint("Horizontal", 5),
    Sketcher.Constraint("Vertical", 6),
    Sketcher.Constraint("Horizontal", 7),
    Sketcher.Constraint("Vertical", 8),
    Sketcher.Constraint("Horizontal", 9),
    Sketcher.Constraint("Vertical", 10),
    Sketcher.Constraint("Horizontal", 11),
    Sketcher.Constraint("Vertical", 12),
    Sketcher.Constraint("Horizontal", 13),
    Sketcher.Constraint("Vertical", 14),
    Sketcher.Constraint("Horizontal", 15),
    Sketcher.Constraint("Symmetric", 2, 2, 8, 2, -1, 1),
    Sketcher.Constraint("Symmetric", 0, 2, 10, 2, -1, 1),
    Sketcher.Constraint("Symmetric", 6, 2, 12, 2, -1, 1),
    Sketcher.Constraint("Symmetric", 4, 2, 14, 2, -1, 1),
    Sketcher.Constraint("Symmetric", 1, 2, 4, 2, -2),
    Sketcher.Constraint("Symmetric", 3, 2, 6, 2, -2),
    Sketcher.Constraint("DistanceX", 1, 1, 1, 2, Q("20 mm")),
    Sketcher.Constraint("DistanceY", 0, 2, 0, 1, Q("1.5 mm")),
    Sketcher.Constraint("DistanceX", 0, 2, -1, 1, Q("75 mm")),
    Sketcher.Constraint("DistanceY", 2, 2, -1, 1, Q("61 mm")),
])
pad7 = doc.addObject("PartDesign::Pad", "Pad006")
body.addObject(pad7)
pad7.Profile = sketch26
pad7.Length = 13.5

# Sketch on XZ plane
sketch27 = doc.addObject("Sketcher::SketchObject", "Sketch026")
body.addObject(sketch27)
sketch27.AttachmentSupport = (doc.XZ_Plane, [""])
sketch27.MapMode = "FlatFace"
sketch27.AttachmentOffset = App.Placement(App.Vector(0, 0, -62.5), App.Rotation())
sketch27.addGeometry([
    Part.Circle(App.Vector(-65, 16.5, 0), App.Vector(0, 0, 1), 3.2),
    Part.Circle(App.Vector(65, 16.5, 0), App.Vector(0, 0, 1), 3.2),
], False)
sketch27.addConstraint([
    Sketcher.Constraint("Equal", 0, 1),
    Sketcher.Constraint("Symmetric", 0, 3, 1, 3, -2),
    Sketcher.Constraint("Diameter", 0, Q("6.5 mm")),
    Sketcher.Constraint("DistanceX", 0, 3, -1, 1, Q("65 mm")),
    Sketcher.Constraint("DistanceY", -1, 1, 0, 3, Q("16.5 mm")),
])
pocket20 = doc.addObject("PartDesign::Pocket", "Pocket019")
body.addObject(pocket20)
pocket20.Profile = sketch27
pocket20.Length = 125
pocket20.Reversed = True

doc.recompute()
